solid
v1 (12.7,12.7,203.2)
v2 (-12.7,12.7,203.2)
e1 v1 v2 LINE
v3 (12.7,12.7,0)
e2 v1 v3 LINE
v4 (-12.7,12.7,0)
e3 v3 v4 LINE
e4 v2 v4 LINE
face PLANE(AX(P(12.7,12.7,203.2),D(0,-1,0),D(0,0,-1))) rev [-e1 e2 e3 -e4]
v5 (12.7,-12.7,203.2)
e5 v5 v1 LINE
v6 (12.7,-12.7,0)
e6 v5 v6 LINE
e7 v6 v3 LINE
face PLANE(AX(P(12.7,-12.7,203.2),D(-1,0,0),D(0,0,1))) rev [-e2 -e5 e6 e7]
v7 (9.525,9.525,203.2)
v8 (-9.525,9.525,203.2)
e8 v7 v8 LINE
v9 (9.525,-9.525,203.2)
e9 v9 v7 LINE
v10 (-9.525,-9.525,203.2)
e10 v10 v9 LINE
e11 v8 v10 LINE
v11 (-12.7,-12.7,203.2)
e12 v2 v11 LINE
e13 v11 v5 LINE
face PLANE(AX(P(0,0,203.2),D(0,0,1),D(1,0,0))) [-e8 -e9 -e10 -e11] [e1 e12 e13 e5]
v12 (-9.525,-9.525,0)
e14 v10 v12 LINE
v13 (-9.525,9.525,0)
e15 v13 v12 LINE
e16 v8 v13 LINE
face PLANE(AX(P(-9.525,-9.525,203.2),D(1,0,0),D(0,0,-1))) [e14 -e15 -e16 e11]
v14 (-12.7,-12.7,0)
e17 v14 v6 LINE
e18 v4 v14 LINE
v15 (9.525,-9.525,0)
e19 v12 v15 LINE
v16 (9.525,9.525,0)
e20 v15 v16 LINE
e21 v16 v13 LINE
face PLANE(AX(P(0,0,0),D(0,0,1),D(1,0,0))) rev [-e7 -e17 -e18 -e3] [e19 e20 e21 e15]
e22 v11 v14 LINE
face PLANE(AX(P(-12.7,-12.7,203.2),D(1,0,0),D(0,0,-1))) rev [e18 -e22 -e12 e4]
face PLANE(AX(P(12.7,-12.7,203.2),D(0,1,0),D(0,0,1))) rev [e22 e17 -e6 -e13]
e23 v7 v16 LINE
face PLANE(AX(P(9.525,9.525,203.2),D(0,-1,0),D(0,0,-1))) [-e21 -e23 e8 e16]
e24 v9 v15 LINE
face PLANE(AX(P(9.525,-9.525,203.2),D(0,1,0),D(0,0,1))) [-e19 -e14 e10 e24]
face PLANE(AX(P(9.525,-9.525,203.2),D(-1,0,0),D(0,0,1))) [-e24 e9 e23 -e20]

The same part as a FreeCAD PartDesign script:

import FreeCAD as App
import Part
import Sketcher

V = App.Vector
Q = App.Units.Quantity

doc = App.newDocument("Part")
params = doc.addObject("Spreadsheet::Sheet", "Params")
for row, (alias, value) in enumerate([
    ("sketch1_width", "1 in"),
    ("sketch1_width2", "0.75 in"),
    ("pad1_length", "8 in"),
], start=1):
    params.set(f"A{row}", alias)
    params.set(f"B{row}", "=" + value)
    params.setAlias(f"B{row}", alias)

body = doc.addObject("PartDesign::Body", "Body")

# Sketch on XY plane
sketch1 = body.newObject("Sketcher::SketchObject", "Sketch")
sketch1.AttachmentSupport = (doc.getObject("XY_Plane"), [""])
sketch1.MapMode = "FlatFace"
sketch1.addGeometry(Part.LineSegment(V(-13, 13, 0), V(-13, -13, 0)), False)
sketch1.addGeometry(Part.LineSegment(V(-13, -13, 0), V(13, -13, 0)), False)
sketch1.addGeometry(Part.LineSegment(V(13, -13, 0), V(13, 13, 0)), False)
sketch1.addGeometry(Part.LineSegment(V(13, 13, 0), V(-13, 13, 0)), False)
sketch1.addGeometry(Part.LineSegment(V(10, -10, 0), V(-10, -10, 0)), False)
sketch1.addGeometry(Part.LineSegment(V(-10, -10, 0), V(-10, 10, 0)), False)
sketch1.addGeometry(Part.LineSegment(V(-10, 10, 0), V(10, 10, 0)), False)
sketch1.addGeometry(Part.LineSegment(V(10, 10, 0), V(10, -10, 0)), False)
sketch1.addConstraint(Sketcher.Constraint("Coincident", 0, 2, 1, 1))
sketch1.addConstraint(Sketcher.Constraint("Coincident", 1, 2, 2, 1))
sketch1.addConstraint(Sketcher.Constraint("Coincident", 2, 2, 3, 1))
sketch1.addConstraint(Sketcher.Constraint("Coincident", 3, 2, 0, 1))
sketch1.addConstraint(Sketcher.Constraint("Coincident", 4, 2, 5, 1))
sketch1.addConstraint(Sketcher.Constraint("Coincident", 5, 2, 6, 1))
sketch1.addConstraint(Sketcher.Constraint("Coincident", 6, 2, 7, 1))
sketch1.addConstraint(Sketcher.Constraint("Coincident", 7, 2, 4, 1))
sketch1.addConstraint(Sketcher.Constraint("Vertical", 0))
sketch1.addConstraint(Sketcher.Constraint("Horizontal", 1))
sketch1.addConstraint(Sketcher.Constraint("Vertical", 2))
sketch1.addConstraint(Sketcher.Constraint("Horizontal", 3))
sketch1.addConstraint(Sketcher.Constraint("Horizontal", 4))
sketch1.addConstraint(Sketcher.Constraint("Vertical", 5))
sketch1.addConstraint(Sketcher.Constraint("Horizontal", 6))
sketch1.addConstraint(Sketcher.Constraint("Vertical", 7))
sketch1.addConstraint(Sketcher.Constraint("Symmetric", 0, 2, 2, 2, -1, 1))
sketch1.addConstraint(Sketcher.Constraint("Symmetric", 4, 2, 6, 2, -1, 1))
sketch1.addConstraint(Sketcher.Constraint("Equal", 3, 0))
sketch1.addConstraint(Sketcher.Constraint("Equal", 6, 5))
sketch1.addConstraint(Sketcher.Constraint("DistanceX", 1, 1, 1, 2, Q("1 in")))
sketch1.addConstraint(Sketcher.Constraint("DistanceX", 4, 2, 4, 1, Q("0.75 in")))
sketch1.setExpression("Constraints[20]", "Params.sketch1_width")
sketch1.setExpression("Constraints[21]", "Params.sketch1_width2")
pad1 = body.newObject("PartDesign::Pad", "Pad")
pad1.Profile = sketch1
pad1.setExpression("Length", "Params.pad1_length")

doc.recompute()
